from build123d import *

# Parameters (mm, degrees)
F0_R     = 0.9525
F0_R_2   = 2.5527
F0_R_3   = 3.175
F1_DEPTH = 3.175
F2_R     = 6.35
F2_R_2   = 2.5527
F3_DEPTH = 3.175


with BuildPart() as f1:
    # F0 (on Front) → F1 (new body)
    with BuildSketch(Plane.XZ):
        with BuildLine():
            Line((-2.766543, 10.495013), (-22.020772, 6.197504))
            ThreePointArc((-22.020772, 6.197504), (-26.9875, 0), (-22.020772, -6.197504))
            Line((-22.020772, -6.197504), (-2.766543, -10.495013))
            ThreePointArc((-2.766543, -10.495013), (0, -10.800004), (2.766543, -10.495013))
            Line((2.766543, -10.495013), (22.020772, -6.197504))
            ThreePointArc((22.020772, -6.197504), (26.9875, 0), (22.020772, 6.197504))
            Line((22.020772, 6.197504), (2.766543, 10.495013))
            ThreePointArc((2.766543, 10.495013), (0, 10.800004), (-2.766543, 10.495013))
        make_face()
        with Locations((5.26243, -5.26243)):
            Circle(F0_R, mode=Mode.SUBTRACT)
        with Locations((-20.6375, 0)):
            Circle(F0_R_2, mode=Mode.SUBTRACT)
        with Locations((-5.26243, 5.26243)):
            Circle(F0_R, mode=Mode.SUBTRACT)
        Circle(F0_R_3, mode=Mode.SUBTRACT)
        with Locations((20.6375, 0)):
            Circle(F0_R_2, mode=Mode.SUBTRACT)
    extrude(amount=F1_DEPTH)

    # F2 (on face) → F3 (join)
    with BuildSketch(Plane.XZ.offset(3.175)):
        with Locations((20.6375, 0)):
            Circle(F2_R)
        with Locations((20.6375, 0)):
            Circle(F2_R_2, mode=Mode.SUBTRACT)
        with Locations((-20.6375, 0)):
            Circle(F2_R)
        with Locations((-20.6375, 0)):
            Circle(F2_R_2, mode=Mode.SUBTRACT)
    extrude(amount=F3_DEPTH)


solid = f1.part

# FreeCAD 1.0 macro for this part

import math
import FreeCAD as App
import Part
import Sketcher
from FreeCAD import Vector
Q = App.Units.Quantity

doc = App.newDocument("Part")
body = doc.addObject("PartDesign::Body", "Body")

sketch1 = doc.addObject("Sketcher::SketchObject", "Sketch")
body.addObject(sketch1)
sketch1.AttachmentSupport = (doc.XZ_Plane, [""])
sketch1.MapMode = "FlatFace"
sketch1.addGeometry(Part.LineSegment(Vector(-2.766543, 10.495013, 0), Vector(-22.020772, 6.197504, 0)), False)
sketch1.addGeometry(Part.ArcOfCircle(Part.Circle(Vector(-20.6375, 0, 0), Vector(0, 0, 1), 6.35), math.radians(102.582084), math.radians(257.417916)), False)
sketch1.addGeometry(Part.LineSegment(Vector(-22.020772, -6.197504, 0), Vector(-2.766543, -10.495013, 0)), False)
sketch1.addGeometry(Part.ArcOfCircle(Part.Circle(Vector(0, 1.90001, 0), Vector(0, 0, 1), 12.700014), math.radians(-102.582068), math.radians(-77.417932)), False)
sketch1.addGeometry(Part.LineSegment(Vector(2.766543, -10.495013, 0), Vector(22.020772, -6.197504, 0)), False)
sketch1.addGeometry(Part.ArcOfCircle(Part.Circle(Vector(20.6375, 0, 0), Vector(0, 0, 1), 6.35), math.radians(-77.417916), math.radians(77.417916)), False)
sketch1.addGeometry(Part.LineSegment(Vector(22.020772, 6.197504, 0), Vector(2.766543, 10.495013, 0)), False)
sketch1.addGeometry(Part.ArcOfCircle(Part.Circle(Vector(0, -1.90001, 0), Vector(0, 0, 1), 12.700014), math.radians(77.417932), math.radians(102.582068)), False)
sketch1.addGeometry(Part.Circle(Vector(-20.6375, 0, 0), Vector(0, 0, 1), 2.5527), False)
sketch1.addGeometry(Part.Circle(Vector(5.26243, -5.26243, 0), Vector(0, 0, 1), 0.9525), False)
sketch1.addGeometry(Part.Circle(Vector(0, 0, 0), Vector(0, 0, 1), 3.175), False)
sketch1.addGeometry(Part.Circle(Vector(20.6375, 0, 0), Vector(0, 0, 1), 2.5527), False)
sketch1.addGeometry(Part.Circle(Vector(-5.26243, 5.26243, 0), Vector(0, 0, 1), 0.9525), False)
sketch1.addConstraint(Sketcher.Constraint("Coincident", 0, 2, 1, 1))
sketch1.addConstraint(Sketcher.Constraint("Coincident", 1, 2, 2, 1))
sketch1.addConstraint(Sketcher.Constraint("Coincident", 2, 2, 3, 1))
sketch1.addConstraint(Sketcher.Constraint("Coincident", 3, 2, 4, 1))
sketch1.addConstraint(Sketcher.Constraint("Coincident", 4, 2, 5, 1))
sketch1.addConstraint(Sketcher.Constraint("Coincident", 5, 2, 6, 1))
sketch1.addConstraint(Sketcher.Constraint("Coincident", 6, 2, 7, 1))
sketch1.addConstraint(Sketcher.Constraint("Coincident", 7, 2, 0, 1))
sketch1.addConstraint(Sketcher.Constraint("Coincident", 10, 3, -1, 1))
sketch1.addConstraint(Sketcher.Constraint("Coincident", 8, 3, 1, 3))
sketch1.addConstraint(Sketcher.Constraint("Coincident", 11, 3, 5, 3))
sketch1.addConstraint(Sketcher.Constraint("PointOnObject", 1, 3, -1))
sketch1.addConstraint(Sketcher.Constraint("PointOnObject", 3, 3, -2))
sketch1.addConstraint(Sketcher.Constraint("PointOnObject", 5, 3, -1))
sketch1.addConstraint(Sketcher.Constraint("PointOnObject", 7, 3, -2))
sketch1.addConstraint(Sketcher.Constraint("Diameter", 10, Q("0.25 in")))
sketch1.addConstraint(Sketcher.Constraint("Radius", 1, Q("0.25 in")))
sketch1.addConstraint(Sketcher.Constraint("Radius", 5, Q("0.25 in")))
sketch1.addConstraint(Sketcher.Constraint("Diameter", 8, Q("0.201 in")))
sketch1.addConstraint(Sketcher.Constraint("Diameter", 9, Q("0.075 in")))
sketch1.addConstraint(Sketcher.Constraint("Diameter", 11, Q("0.201 in")))
sketch1.addConstraint(Sketcher.Constraint("Diameter", 12, Q("0.075 in")))
sketch1.addConstraint(Sketcher.Constraint("DistanceX", 1, 3, -1, 1, Q("0.8125 in")))
sketch1.addConstraint(Sketcher.Constraint("DistanceX", -1, 1, 5, 3, Q("0.8125 in")))
sketch1.addConstraint(Sketcher.Constraint("Radius", 3, 12.700014))
sketch1.addConstraint(Sketcher.Constraint("Radius", 7, 12.700014))
sketch1.addConstraint(Sketcher.Constraint("Distance", 0, 19.727998))
sketch1.addConstraint(Sketcher.Constraint("Distance", 2, 19.727998))
sketch1.addConstraint(Sketcher.Constraint("Distance", 4, 19.727998))
sketch1.addConstraint(Sketcher.Constraint("Distance", 6, 19.727998))
sketch1.addConstraint(Sketcher.Constraint("DistanceY", -1, 1, 3, 3, 1.90001))
sketch1.addConstraint(Sketcher.Constraint("DistanceY", 7, 3, -1, 1, 1.90001))
sketch1.addConstraint(Sketcher.Constraint("DistanceX", -1, 1, 9, 3, 5.26243))
sketch1.addConstraint(Sketcher.Constraint("DistanceY", 9, 3, -1, 1, 5.26243))
sketch1.addConstraint(Sketcher.Constraint("DistanceX", 12, 3, -1, 1, 5.26243))
sketch1.addConstraint(Sketcher.Constraint("DistanceY", -1, 1, 12, 3, 5.26243))
sketch1.addConstraint(Sketcher.Constraint("DistanceX", 0, 2, 1, 3, 1.383272))
sketch1.addConstraint(Sketcher.Constraint("DistanceX", 1, 2, 1, 3, 1.383272))
sketch1.addConstraint(Sketcher.Constraint("DistanceX", 5, 3, 4, 2, 1.383272))
sketch1.addConstraint(Sketcher.Constraint("DistanceX", 5, 3, 5, 2, 1.383272))
pad1 = doc.addObject("PartDesign::Pad", "Pad")
body.addObject(pad1)
pad1.Profile = sketch1
pad1.Length = Q("0.125 in")

sketch2 = doc.addObject("Sketcher::SketchObject", "Sketch001")
body.addObject(sketch2)
sketch2.AttachmentSupport = (doc.XZ_Plane, [""])
sketch2.MapMode = "FlatFace"
sketch2.AttachmentOffset = App.Placement(Vector(0, 0, 0.125 * 25.4), App.Rotation())
sketch2.addGeometry(Part.Circle(Vector(20.6, 0, 0), Vector(0, 0, 1), 6.3), False)
sketch2.addGeometry(Part.Circle(Vector(20.6, 0, 0), Vector(0, 0, 1), 2.6), False)
sketch2.addGeometry(Part.Circle(Vector(-20.6, 0, 0), Vector(0, 0, 1), 6.3), False)
sketch2.addGeometry(Part.Circle(Vector(-20.6, 0, 0), Vector(0, 0, 1), 2.6), False)
sketch2.addConstraint(Sketcher.Constraint("Coincident", 1, 3, 0, 3))
sketch2.addConstraint(Sketcher.Constraint("Coincident", 3, 3, 2, 3))
sketch2.addConstraint(Sketcher.Constraint("Equal", 0, 2))
sketch2.addConstraint(Sketcher.Constraint("Equal", 1, 3))
sketch2.addConstraint(Sketcher.Constraint("Symmetric", 0, 3, 2, 3, -1, 1))
sketch2.addConstraint(Sketcher.Constraint("PointOnObject", 0, 3, -1))
sketch2.addConstraint(Sketcher.Constraint("Diameter", 0, Q("0.5 in")))
sketch2.addConstraint(Sketcher.Constraint("Diameter", 1, Q("0.201 in")))
sketch2.addConstraint(Sketcher.Constraint("DistanceX", -1, 1, 0, 3, Q("0.8125 in")))
pad2 = doc.addObject("PartDesign::Pad", "Pad001")
body.addObject(pad2)
pad2.Profile = sketch2
pad2.Length = Q("0.125 in")

doc.recompute()
